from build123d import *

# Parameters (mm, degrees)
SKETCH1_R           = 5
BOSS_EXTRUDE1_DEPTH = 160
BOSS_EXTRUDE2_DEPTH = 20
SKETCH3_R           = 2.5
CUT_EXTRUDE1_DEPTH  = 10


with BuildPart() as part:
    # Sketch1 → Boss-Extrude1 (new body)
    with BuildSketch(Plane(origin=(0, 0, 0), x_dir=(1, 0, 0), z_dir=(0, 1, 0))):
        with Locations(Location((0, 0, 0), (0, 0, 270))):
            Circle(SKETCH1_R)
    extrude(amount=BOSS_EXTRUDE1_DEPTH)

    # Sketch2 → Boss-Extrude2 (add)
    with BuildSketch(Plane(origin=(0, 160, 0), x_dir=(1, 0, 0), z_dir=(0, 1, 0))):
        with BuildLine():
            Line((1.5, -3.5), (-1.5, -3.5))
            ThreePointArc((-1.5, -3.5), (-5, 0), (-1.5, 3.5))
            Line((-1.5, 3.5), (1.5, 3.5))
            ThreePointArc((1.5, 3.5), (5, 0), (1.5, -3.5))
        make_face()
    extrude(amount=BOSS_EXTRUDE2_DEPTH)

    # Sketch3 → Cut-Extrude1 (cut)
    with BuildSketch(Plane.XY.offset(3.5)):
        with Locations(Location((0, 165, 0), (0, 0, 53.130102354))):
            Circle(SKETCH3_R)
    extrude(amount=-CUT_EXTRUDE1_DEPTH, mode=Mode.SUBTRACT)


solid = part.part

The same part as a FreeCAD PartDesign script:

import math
import FreeCAD as App
import Part
import Sketcher
from FreeCAD import Vector

doc = App.newDocument("Part")
body = doc.addObject("PartDesign::Body", "Body")

sketch1 = doc.addObject("Sketcher::SketchObject", "Sketch")
body.addObject(sketch1)
sketch1.AttachmentSupport = (doc.XZ_Plane, [""])
sketch1.MapMode = "FlatFace"
sketch1.addGeometry(Part.Circle(Vector(0, 0, 0), Vector(0, 0, 1), 5), False)
sketch1.addConstraint([
    Sketcher.Constraint("Coincident", 0, 3, -1, 1),
    Sketcher.Constraint("Diameter", 0, 10.0),
])
pad1 = doc.addObject("PartDesign::Pad", "Pad")
body.addObject(pad1)
pad1.Profile = sketch1
pad1.Length = 160
pad1.Reversed = True

sketch2 = doc.addObject("Sketcher::SketchObject", "Sketch001")
body.addObject(sketch2)
sketch2.AttachmentSupport = (doc.XZ_Plane, [""])
sketch2.MapMode = "FlatFace"
sketch2.AttachmentOffset = App.Placement(Vector(0, 0, -160), App.Rotation())
sketch2.addGeometry([
    Part.LineSegment(Vector(-1.5, 3.5, 0), Vector(1.5, 3.5, 0)),
    Part.ArcOfCircle(Part.Circle(Vector(1.5, 0, 0), Vector(0, 0, 1), 3.5), math.radians(-90), math.radians(90)),
    Part.LineSegment(Vector(1.5, -3.5, 0), Vector(-1.5, -3.5, 0)),
    Part.ArcOfCircle(Part.Circle(Vector(-1.5, 0, 0), Vector(0, 0, 1), 3.5), math.radians(90), math.radians(270)),
], False)
sketch2.addConstraint([
    Sketcher.Constraint("Tangent", 0, 2, 1, 2),
    Sketcher.Constraint("Tangent", 1, 1, 2, 1),
    Sketcher.Constraint("Tangent", 2, 2, 3, 2),
    Sketcher.Constraint("Tangent", 3, 1, 0, 1),
    Sketcher.Constraint("Horizontal", 0),
    Sketcher.Constraint("Horizontal", 2),
    Sketcher.Constraint("Symmetric", 1, 3, 3, 3, -1, 1),
    Sketcher.Constraint("Radius", 1, 3.5),
    Sketcher.Constraint("DistanceX", 0, 1, 0, 2, 3.0),
])
pad2 = doc.addObject("PartDesign::Pad", "Pad001")
body.addObject(pad2)
pad2.Profile = sketch2
pad2.Length = 20
pad2.Reversed = True

sketch3 = doc.addObject("Sketcher::SketchObject", "Sketch002")
body.addObject(sketch3)
sketch3.AttachmentSupport = (doc.XY_Plane, [""])
sketch3.MapMode = "FlatFace"
sketch3.AttachmentOffset = App.Placement(Vector(0, 0, 3.5), App.Rotation())
sketch3.addGeometry(Part.Circle(Vector(0, 165, 0), Vector(0, 0, 1), 2.5), False)
sketch3.addConstraint([
    Sketcher.Constraint("PointOnObject", 0, 3, -2),
    Sketcher.Constraint("Diameter", 0, 5.0),
    Sketcher.Constraint("DistanceY", -1, 1, 0, 3, 165.0),
])
pocket1 = doc.addObject("PartDesign::Pocket", "Pocket")
body.addObject(pocket1)
pocket1.Profile = sketch3
pocket1.Length = 10

doc.recompute()
